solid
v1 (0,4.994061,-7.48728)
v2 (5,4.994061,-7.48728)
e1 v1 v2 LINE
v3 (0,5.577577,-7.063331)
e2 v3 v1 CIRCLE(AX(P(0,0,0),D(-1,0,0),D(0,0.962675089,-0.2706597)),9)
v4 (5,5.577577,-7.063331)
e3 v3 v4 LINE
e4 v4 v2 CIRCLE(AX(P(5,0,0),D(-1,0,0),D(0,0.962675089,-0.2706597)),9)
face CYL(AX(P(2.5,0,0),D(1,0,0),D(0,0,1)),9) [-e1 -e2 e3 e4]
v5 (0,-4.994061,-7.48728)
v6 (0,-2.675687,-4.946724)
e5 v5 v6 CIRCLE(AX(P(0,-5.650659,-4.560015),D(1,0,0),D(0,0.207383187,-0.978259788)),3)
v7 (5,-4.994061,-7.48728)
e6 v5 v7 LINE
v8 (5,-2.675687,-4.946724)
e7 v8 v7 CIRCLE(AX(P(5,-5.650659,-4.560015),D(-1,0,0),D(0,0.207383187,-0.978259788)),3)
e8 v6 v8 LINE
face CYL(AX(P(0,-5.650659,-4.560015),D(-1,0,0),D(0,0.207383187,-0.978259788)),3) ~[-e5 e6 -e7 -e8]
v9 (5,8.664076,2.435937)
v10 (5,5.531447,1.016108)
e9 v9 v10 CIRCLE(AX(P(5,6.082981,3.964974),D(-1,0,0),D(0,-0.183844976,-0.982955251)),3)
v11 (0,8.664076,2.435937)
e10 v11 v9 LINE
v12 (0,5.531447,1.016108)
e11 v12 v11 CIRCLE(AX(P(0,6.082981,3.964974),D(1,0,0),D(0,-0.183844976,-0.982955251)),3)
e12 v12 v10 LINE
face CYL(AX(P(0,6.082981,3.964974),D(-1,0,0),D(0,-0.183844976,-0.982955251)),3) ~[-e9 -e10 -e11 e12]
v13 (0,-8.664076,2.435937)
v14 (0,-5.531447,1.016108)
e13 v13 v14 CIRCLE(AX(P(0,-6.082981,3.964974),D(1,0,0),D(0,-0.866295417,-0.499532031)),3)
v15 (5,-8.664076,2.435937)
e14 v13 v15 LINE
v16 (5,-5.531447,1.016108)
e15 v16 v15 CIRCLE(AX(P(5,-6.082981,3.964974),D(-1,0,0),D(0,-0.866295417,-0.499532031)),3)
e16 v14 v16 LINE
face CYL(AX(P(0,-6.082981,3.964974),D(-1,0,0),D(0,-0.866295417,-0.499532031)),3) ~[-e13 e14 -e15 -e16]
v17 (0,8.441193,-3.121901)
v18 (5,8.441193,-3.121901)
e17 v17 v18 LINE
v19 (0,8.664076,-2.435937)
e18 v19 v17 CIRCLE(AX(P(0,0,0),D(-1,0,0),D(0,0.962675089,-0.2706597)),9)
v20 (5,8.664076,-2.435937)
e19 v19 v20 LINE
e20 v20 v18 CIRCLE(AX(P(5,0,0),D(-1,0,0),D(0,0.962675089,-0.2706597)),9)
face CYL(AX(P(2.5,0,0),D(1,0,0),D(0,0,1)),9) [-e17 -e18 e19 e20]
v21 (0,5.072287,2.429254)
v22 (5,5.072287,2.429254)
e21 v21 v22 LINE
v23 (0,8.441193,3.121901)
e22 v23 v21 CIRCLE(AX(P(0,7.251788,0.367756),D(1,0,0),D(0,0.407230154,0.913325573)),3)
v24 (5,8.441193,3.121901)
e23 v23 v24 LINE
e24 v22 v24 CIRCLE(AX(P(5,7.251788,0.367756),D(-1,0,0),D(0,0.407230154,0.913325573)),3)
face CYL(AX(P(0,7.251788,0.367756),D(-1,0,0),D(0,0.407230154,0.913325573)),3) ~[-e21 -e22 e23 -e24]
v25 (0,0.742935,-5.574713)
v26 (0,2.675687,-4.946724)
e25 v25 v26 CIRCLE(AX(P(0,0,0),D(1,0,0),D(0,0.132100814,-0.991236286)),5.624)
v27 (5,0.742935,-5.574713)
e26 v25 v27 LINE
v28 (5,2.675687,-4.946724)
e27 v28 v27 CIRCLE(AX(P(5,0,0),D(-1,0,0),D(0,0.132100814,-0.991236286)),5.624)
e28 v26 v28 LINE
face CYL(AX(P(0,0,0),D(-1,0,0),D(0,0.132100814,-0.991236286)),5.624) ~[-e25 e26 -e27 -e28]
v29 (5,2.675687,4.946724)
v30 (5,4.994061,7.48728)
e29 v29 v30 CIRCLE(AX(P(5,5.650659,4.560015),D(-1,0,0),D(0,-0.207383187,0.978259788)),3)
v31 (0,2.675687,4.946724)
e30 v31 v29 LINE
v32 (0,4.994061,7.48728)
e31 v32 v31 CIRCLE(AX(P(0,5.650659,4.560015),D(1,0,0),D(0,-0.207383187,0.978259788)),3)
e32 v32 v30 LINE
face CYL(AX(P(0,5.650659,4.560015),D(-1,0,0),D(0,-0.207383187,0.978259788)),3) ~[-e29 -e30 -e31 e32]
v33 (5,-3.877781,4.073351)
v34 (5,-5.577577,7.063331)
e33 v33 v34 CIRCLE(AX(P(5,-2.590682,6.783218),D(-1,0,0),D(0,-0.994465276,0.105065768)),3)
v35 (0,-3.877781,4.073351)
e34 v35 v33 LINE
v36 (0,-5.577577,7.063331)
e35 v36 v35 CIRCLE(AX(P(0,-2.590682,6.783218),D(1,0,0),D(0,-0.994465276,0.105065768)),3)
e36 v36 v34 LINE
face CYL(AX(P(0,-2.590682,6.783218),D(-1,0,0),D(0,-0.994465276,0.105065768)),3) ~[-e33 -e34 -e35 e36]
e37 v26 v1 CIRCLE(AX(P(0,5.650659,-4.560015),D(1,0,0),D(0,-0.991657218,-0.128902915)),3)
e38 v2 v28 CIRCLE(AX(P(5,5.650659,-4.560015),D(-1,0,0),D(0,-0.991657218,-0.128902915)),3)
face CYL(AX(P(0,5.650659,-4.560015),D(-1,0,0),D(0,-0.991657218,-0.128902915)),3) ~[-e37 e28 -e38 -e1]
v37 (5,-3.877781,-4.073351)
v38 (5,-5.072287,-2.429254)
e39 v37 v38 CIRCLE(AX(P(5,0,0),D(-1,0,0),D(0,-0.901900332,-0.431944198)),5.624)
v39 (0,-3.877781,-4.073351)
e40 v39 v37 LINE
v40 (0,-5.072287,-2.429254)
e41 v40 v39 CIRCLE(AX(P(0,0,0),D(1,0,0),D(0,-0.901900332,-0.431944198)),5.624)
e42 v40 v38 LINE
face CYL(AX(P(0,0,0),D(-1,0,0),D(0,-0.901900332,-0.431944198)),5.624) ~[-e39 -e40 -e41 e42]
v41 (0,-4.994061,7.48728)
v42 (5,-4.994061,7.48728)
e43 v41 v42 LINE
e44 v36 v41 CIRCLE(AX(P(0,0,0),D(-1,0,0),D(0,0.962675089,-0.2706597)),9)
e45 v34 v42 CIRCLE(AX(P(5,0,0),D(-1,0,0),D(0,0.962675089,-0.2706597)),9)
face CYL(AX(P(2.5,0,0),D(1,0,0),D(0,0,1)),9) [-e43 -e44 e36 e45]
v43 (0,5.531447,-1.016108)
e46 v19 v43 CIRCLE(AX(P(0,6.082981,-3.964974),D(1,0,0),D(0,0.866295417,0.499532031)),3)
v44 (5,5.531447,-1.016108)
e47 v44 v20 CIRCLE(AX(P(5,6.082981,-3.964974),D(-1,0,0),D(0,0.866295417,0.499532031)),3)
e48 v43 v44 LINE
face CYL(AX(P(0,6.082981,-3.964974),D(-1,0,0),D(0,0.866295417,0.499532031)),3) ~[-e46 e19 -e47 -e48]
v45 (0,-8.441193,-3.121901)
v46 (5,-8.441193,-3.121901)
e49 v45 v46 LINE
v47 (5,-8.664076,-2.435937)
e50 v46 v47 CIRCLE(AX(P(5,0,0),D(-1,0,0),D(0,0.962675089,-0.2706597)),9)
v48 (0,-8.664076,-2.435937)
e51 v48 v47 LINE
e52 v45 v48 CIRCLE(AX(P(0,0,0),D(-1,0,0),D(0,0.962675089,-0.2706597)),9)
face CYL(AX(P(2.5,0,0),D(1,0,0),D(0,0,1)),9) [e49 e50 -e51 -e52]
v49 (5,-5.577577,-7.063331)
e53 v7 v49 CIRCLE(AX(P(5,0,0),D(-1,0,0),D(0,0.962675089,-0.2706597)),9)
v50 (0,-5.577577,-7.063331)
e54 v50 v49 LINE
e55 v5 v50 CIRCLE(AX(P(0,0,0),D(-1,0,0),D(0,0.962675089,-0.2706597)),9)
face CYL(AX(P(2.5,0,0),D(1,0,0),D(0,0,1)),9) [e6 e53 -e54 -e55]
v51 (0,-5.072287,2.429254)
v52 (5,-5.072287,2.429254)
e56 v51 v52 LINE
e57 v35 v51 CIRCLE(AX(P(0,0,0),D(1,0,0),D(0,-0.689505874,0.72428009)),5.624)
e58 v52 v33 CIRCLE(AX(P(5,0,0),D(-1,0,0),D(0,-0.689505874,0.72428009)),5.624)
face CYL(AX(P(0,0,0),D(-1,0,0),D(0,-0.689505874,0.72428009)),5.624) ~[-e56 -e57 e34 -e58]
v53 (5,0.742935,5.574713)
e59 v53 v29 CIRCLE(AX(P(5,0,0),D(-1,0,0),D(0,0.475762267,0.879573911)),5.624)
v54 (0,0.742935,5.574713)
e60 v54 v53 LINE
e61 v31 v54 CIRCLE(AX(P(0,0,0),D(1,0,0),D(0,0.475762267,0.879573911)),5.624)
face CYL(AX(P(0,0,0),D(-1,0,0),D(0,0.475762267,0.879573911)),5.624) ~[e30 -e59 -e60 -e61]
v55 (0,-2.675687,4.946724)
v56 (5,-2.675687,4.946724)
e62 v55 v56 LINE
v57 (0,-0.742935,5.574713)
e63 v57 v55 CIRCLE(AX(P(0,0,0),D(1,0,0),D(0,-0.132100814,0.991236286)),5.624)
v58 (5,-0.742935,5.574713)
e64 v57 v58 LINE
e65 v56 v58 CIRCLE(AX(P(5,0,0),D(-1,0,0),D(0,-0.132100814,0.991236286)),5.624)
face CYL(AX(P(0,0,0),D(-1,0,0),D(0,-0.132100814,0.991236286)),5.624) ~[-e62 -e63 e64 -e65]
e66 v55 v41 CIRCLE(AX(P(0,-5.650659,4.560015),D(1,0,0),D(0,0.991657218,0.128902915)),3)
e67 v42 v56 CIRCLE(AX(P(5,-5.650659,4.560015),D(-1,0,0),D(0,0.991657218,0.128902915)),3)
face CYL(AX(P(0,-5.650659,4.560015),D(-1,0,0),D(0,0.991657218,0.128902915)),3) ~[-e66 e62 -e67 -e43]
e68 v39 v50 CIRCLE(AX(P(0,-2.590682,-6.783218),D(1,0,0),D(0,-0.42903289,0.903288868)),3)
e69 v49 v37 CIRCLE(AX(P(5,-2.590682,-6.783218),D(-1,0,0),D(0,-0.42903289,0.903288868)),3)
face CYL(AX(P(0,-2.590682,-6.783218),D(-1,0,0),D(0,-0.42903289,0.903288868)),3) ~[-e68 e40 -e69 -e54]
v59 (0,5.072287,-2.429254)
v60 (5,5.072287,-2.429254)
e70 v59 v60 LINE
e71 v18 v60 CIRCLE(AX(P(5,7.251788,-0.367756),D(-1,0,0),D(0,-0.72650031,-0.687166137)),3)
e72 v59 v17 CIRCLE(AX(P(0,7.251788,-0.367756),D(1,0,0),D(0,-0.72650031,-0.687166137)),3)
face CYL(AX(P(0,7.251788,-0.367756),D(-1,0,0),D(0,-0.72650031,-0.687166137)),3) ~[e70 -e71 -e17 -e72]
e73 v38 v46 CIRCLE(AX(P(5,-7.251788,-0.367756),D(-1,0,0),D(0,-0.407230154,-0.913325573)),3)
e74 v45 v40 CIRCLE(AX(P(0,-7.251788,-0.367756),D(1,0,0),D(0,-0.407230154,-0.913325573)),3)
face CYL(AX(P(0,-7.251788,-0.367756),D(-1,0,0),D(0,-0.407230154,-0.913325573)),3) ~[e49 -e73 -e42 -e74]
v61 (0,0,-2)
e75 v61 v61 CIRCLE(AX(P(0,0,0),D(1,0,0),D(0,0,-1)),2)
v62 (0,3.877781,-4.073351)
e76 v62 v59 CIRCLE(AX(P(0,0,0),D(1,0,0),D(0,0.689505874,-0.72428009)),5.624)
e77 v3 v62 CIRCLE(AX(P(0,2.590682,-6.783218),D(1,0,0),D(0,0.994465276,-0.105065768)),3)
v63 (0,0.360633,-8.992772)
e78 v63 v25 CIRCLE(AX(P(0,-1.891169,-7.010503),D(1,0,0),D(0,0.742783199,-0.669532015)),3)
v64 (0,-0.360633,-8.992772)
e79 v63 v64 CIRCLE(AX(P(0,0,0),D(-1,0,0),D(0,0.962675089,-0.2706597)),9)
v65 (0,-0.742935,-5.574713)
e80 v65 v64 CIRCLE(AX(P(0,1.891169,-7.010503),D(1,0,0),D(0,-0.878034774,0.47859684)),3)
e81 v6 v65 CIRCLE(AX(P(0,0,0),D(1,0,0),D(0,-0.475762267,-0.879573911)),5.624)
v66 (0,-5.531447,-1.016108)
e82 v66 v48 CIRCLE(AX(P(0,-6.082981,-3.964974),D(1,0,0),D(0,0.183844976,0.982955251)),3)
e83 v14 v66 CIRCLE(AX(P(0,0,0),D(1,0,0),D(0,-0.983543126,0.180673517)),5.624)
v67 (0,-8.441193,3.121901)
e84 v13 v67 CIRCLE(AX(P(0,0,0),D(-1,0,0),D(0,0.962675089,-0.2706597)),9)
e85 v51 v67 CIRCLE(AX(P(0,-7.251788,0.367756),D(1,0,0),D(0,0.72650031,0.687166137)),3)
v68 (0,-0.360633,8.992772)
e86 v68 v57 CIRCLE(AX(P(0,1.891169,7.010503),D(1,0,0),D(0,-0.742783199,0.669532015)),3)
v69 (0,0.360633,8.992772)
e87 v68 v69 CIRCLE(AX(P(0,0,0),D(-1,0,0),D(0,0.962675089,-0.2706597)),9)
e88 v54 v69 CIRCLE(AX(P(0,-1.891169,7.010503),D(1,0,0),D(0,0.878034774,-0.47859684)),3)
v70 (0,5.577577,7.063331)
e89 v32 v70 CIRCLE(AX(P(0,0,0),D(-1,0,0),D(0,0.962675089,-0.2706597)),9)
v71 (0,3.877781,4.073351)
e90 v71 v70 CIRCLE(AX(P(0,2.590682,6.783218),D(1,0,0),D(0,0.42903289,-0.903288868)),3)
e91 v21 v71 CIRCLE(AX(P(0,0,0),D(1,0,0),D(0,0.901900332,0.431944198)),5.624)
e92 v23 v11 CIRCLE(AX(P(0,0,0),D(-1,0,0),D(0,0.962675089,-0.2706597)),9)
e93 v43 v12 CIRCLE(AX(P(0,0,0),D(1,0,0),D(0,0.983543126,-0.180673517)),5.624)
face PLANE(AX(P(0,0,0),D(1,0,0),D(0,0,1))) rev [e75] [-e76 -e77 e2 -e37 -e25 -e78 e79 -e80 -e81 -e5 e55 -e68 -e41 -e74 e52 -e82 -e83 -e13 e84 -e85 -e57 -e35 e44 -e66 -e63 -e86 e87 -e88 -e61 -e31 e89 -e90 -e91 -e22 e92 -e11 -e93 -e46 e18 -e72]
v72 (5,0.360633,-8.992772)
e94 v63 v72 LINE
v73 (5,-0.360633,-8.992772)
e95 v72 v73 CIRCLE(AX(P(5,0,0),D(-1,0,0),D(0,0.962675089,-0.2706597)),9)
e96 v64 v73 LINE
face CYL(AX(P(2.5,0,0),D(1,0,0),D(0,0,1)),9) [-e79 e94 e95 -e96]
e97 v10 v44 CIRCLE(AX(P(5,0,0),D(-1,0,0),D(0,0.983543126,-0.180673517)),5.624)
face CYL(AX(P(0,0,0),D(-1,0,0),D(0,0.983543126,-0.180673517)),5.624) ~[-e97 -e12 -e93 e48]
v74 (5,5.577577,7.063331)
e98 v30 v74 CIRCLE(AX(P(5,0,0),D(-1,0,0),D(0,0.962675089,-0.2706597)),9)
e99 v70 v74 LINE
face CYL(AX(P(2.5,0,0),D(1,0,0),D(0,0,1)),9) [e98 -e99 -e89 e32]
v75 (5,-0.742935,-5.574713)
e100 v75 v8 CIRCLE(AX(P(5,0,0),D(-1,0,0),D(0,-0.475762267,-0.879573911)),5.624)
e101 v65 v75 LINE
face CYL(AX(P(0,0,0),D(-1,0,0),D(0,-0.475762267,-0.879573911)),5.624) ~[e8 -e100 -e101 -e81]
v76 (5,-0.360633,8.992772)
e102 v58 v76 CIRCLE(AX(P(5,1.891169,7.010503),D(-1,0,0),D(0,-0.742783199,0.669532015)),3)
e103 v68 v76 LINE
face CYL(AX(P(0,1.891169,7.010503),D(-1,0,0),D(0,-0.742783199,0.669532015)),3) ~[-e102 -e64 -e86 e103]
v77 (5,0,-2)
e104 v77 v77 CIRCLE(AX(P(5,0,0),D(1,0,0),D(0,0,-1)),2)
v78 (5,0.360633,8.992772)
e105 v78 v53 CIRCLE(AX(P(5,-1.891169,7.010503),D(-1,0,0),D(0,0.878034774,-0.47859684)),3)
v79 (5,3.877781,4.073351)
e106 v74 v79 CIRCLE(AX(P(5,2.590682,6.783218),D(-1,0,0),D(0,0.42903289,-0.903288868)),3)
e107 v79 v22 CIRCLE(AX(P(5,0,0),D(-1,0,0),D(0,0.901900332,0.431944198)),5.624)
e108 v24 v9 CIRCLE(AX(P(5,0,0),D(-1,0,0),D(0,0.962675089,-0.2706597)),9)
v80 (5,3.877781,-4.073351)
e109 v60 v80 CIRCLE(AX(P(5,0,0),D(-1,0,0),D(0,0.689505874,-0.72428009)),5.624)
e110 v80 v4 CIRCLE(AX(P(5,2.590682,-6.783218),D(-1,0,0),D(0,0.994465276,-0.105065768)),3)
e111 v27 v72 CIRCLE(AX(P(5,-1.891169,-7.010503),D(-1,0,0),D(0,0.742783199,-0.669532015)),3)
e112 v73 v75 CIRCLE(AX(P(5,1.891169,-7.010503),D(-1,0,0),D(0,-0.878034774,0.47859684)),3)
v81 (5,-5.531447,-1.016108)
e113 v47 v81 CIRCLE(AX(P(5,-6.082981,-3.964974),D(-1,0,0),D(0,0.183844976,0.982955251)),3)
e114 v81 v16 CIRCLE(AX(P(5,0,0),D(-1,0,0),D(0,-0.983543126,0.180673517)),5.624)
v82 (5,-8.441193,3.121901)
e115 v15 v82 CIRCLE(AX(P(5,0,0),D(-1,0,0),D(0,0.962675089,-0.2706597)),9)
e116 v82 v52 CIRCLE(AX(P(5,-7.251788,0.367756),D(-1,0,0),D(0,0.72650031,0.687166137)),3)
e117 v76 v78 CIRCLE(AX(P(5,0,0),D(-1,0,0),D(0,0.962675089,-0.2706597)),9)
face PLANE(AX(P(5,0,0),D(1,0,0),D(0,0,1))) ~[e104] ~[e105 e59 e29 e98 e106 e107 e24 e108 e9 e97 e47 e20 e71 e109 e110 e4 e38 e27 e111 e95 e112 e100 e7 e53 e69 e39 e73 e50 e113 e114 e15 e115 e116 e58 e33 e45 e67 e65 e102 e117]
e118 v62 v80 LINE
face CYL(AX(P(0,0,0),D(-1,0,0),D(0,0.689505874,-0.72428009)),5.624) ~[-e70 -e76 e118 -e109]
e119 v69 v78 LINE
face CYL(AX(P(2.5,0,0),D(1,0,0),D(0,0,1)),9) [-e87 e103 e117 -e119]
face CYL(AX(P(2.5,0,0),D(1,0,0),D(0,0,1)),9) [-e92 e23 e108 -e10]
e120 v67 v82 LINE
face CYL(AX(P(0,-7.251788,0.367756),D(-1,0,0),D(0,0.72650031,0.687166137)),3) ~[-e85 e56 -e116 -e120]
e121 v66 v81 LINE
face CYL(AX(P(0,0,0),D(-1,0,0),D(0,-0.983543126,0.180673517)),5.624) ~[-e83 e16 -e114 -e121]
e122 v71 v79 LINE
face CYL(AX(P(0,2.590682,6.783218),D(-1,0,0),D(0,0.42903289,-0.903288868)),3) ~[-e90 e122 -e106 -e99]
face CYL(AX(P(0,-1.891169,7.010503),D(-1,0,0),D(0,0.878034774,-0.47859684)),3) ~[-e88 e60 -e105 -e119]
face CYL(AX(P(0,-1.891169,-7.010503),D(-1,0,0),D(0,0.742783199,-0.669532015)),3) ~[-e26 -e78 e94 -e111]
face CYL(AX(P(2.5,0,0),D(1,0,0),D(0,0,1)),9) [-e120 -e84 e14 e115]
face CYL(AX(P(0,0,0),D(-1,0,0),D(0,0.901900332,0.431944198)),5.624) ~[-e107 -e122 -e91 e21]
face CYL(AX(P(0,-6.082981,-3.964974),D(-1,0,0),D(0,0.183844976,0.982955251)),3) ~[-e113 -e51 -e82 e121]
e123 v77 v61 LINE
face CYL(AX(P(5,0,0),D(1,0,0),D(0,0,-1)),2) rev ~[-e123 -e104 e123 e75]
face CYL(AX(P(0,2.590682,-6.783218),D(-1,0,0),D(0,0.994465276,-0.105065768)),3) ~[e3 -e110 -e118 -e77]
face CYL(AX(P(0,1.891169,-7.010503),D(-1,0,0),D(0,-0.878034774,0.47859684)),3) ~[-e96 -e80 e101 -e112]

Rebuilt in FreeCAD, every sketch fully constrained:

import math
import FreeCAD as App
import Part
import Sketcher
Q = App.Units.Quantity


def add_polygon(sketch, points):
    """Adds a closed chain of lines whose ends are joined by coincident constraints."""
    first, n = sketch.GeometryCount, len(points)
    for a, b in zip(points, points[1:] + points[:1]):
        sketch.addGeometry(Part.LineSegment(App.Vector(*a, 0), App.Vector(*b, 0)), False)
    for i in range(n):
        sketch.addConstraint(Sketcher.Constraint("Coincident", first + i, 2, first + (i + 1) % n, 1))

doc = App.newDocument("Part")
params = doc.addObject("Spreadsheet::Sheet", "Params")
for row, (alias, value) in enumerate([
    ("sketch1_width", "5 mm"),
    ("sketch1_height", "9 mm"),
    ("revolution_angle", "360 deg"),
    ("sketch2_radius", "3 mm"),
    ("sketch3_diameter", "2 mm"),
    ("pocket2_length", "100.000102 mm"),
    ("sketch4_diameter", "4 mm"),
], start=1):
    params.set(f"A{row}", alias)
    params.set(f"B{row}", "=" + value)
    params.setAlias(f"B{row}", alias)

body = doc.addObject("PartDesign::Body", "Body")

# Sketch on XZ plane
sketch1 = body.newObject("Sketcher::SketchObject", "Sketch")
sketch1.AttachmentSupport = (doc.getObject("XZ_Plane"), [""])
sketch1.MapMode = "FlatFace"
add_polygon(sketch1, [(0, -9), (0, 0), (5, 0), (5, -9)])  # lines 0-3
sketch1.addConstraint(Sketcher.Constraint("Vertical", 0))
sketch1.addConstraint(Sketcher.Constraint("Horizontal", 1))
sketch1.addConstraint(Sketcher.Constraint("Vertical", 2))
sketch1.addConstraint(Sketcher.Constraint("Horizontal", 3))
sketch1.addConstraint(Sketcher.Constraint("Coincident", 0, 2, -1, 1))
sketch1.addConstraint(Sketcher.Constraint("DistanceX", 1, 1, 1, 2, Q("5 mm")))
sketch1.addConstraint(Sketcher.Constraint("DistanceY", 0, 1, 0, 2, Q("9 mm")))
sketch1.setExpression("Constraints[9]", "Params.sketch1_width")
sketch1.setExpression("Constraints[10]", "Params.sketch1_height")
revolution = body.newObject("PartDesign::Revolution", "Revolution")
revolution.Profile = sketch1
revolution.ReferenceAxis = (sketch1, ["H_Axis"])
revolution.setExpression("Angle", "Params.revolution_angle")

# Sketch on YZ plane
sketch2 = body.newObject("Sketcher::SketchObject", "Sketch001")
sketch2.AttachmentSupport = (doc.getObject("YZ_Plane"), [""])
sketch2.MapMode = "FlatFace"
sketch2.addGeometry(Part.ArcOfCircle(Part.Circle(App.Vector(0, 0, 0), App.Vector(0, 0, 1), 5.6), math.radians(-10), math.radians(10)), False)
sketch2.addGeometry(Part.ArcOfCircle(Part.Circle(App.Vector(6.1, -4, 0), App.Vector(0, 0, 1), 3), math.radians(30), math.radians(101)), False)
sketch2.addGeometry(Part.ArcOfCircle(Part.Circle(App.Vector(0, 0, 0), App.Vector(0, 0, 1), 9), math.radians(-16), math.radians(16)), False)
sketch2.addGeometry(Part.ArcOfCircle(Part.Circle(App.Vector(6.1, 4, 0), App.Vector(0, 0, 1), 3), math.radians(-101), math.radians(-30)), False)
sketch2.addConstraint(Sketcher.Constraint("Coincident", 0, 1, 1, 2))
sketch2.addConstraint(Sketcher.Constraint("Coincident", 1, 1, 2, 1))
sketch2.addConstraint(Sketcher.Constraint("Coincident", 2, 2, 3, 2))
sketch2.addConstraint(Sketcher.Constraint("Coincident", 3, 1, 0, 2))
sketch2.addConstraint(Sketcher.Constraint("Coincident", 0, 3, -1, 1))
sketch2.addConstraint(Sketcher.Constraint("Coincident", 2, 3, -1, 1))
sketch2.addConstraint(Sketcher.Constraint("Equal", 1, 3))
sketch2.addConstraint(Sketcher.Constraint("Symmetric", 1, 3, 3, 3, -1))
sketch2.addConstraint(Sketcher.Constraint("Radius", 1, Q("3 mm")))
sketch2.addConstraint(Sketcher.Constraint("Radius", 0, Q("5.624 mm")))
sketch2.addConstraint(Sketcher.Constraint("Radius", 2, Q("9.0254 mm")))
sketch2.addConstraint(Sketcher.Constraint("DistanceX", -1, 1, 1, 3, Q("6.082981 mm")))
sketch2.addConstraint(Sketcher.Constraint("DistanceY", 0, 1, 3, 3, Q("4.981081 mm")))
sketch2.setExpression("Constraints[8]", "Params.sketch2_radius")
pocket1 = body.newObject("PartDesign::Pocket", "Pocket")
pocket1.Profile = sketch2
pocket1.Type = "ThroughAll"
pocket1.Reversed = True
doc.recompute()

polarpattern = body.newObject("PartDesign::PolarPattern", "PolarPattern")
polarpattern.Originals = [pocket1]
polarpattern.Axis = (doc.getObject("X_Axis"), [""])
polarpattern.Angle = 360
polarpattern.Occurrences = 10
body.Tip = polarpattern

# Sketch on YZ plane
sketch3 = body.newObject("Sketcher::SketchObject", "Sketch002")
sketch3.AttachmentSupport = (doc.getObject("YZ_Plane"), [""])
sketch3.MapMode = "FlatFace"
sketch3.addGeometry(Part.Circle(App.Vector(0, 0, 0), App.Vector(0, 0, 1), 1), False)
sketch3.addConstraint(Sketcher.Constraint("Coincident", 0, 3, -1, 1))
sketch3.addConstraint(Sketcher.Constraint("Diameter", 0, Q("2 mm")))
sketch3.setExpression("Constraints[1]", "Params.sketch3_diameter")
pocket2 = body.newObject("PartDesign::Pocket", "Pocket001")
pocket2.Profile = sketch3
pocket2.setExpression("Length", "Params.pocket2_length")
pocket2.Midplane = True

# Sketch on YZ plane
sketch4 = body.newObject("Sketcher::SketchObject", "Sketch003")
sketch4.AttachmentSupport = (doc.getObject("YZ_Plane"), [""])
sketch4.MapMode = "FlatFace"
sketch4.AttachmentOffset = App.Placement(App.Vector(0, 0, 5), App.Rotation())
sketch4.addGeometry(Part.Circle(App.Vector(0, 0, 0), App.Vector(0, 0, 1), 2), False)
sketch4.addConstraint(Sketcher.Constraint("Coincident", 0, 3, -1, 1))
sketch4.addConstraint(Sketcher.Constraint("Diameter", 0, Q("4 mm")))
sketch4.setExpression("Constraints[1]", "Params.sketch4_diameter")
pocket3 = body.newObject("PartDesign::Pocket", "Pocket002")
pocket3.Profile = sketch4
pocket3.Type = "ThroughAll"

doc.recompute()
